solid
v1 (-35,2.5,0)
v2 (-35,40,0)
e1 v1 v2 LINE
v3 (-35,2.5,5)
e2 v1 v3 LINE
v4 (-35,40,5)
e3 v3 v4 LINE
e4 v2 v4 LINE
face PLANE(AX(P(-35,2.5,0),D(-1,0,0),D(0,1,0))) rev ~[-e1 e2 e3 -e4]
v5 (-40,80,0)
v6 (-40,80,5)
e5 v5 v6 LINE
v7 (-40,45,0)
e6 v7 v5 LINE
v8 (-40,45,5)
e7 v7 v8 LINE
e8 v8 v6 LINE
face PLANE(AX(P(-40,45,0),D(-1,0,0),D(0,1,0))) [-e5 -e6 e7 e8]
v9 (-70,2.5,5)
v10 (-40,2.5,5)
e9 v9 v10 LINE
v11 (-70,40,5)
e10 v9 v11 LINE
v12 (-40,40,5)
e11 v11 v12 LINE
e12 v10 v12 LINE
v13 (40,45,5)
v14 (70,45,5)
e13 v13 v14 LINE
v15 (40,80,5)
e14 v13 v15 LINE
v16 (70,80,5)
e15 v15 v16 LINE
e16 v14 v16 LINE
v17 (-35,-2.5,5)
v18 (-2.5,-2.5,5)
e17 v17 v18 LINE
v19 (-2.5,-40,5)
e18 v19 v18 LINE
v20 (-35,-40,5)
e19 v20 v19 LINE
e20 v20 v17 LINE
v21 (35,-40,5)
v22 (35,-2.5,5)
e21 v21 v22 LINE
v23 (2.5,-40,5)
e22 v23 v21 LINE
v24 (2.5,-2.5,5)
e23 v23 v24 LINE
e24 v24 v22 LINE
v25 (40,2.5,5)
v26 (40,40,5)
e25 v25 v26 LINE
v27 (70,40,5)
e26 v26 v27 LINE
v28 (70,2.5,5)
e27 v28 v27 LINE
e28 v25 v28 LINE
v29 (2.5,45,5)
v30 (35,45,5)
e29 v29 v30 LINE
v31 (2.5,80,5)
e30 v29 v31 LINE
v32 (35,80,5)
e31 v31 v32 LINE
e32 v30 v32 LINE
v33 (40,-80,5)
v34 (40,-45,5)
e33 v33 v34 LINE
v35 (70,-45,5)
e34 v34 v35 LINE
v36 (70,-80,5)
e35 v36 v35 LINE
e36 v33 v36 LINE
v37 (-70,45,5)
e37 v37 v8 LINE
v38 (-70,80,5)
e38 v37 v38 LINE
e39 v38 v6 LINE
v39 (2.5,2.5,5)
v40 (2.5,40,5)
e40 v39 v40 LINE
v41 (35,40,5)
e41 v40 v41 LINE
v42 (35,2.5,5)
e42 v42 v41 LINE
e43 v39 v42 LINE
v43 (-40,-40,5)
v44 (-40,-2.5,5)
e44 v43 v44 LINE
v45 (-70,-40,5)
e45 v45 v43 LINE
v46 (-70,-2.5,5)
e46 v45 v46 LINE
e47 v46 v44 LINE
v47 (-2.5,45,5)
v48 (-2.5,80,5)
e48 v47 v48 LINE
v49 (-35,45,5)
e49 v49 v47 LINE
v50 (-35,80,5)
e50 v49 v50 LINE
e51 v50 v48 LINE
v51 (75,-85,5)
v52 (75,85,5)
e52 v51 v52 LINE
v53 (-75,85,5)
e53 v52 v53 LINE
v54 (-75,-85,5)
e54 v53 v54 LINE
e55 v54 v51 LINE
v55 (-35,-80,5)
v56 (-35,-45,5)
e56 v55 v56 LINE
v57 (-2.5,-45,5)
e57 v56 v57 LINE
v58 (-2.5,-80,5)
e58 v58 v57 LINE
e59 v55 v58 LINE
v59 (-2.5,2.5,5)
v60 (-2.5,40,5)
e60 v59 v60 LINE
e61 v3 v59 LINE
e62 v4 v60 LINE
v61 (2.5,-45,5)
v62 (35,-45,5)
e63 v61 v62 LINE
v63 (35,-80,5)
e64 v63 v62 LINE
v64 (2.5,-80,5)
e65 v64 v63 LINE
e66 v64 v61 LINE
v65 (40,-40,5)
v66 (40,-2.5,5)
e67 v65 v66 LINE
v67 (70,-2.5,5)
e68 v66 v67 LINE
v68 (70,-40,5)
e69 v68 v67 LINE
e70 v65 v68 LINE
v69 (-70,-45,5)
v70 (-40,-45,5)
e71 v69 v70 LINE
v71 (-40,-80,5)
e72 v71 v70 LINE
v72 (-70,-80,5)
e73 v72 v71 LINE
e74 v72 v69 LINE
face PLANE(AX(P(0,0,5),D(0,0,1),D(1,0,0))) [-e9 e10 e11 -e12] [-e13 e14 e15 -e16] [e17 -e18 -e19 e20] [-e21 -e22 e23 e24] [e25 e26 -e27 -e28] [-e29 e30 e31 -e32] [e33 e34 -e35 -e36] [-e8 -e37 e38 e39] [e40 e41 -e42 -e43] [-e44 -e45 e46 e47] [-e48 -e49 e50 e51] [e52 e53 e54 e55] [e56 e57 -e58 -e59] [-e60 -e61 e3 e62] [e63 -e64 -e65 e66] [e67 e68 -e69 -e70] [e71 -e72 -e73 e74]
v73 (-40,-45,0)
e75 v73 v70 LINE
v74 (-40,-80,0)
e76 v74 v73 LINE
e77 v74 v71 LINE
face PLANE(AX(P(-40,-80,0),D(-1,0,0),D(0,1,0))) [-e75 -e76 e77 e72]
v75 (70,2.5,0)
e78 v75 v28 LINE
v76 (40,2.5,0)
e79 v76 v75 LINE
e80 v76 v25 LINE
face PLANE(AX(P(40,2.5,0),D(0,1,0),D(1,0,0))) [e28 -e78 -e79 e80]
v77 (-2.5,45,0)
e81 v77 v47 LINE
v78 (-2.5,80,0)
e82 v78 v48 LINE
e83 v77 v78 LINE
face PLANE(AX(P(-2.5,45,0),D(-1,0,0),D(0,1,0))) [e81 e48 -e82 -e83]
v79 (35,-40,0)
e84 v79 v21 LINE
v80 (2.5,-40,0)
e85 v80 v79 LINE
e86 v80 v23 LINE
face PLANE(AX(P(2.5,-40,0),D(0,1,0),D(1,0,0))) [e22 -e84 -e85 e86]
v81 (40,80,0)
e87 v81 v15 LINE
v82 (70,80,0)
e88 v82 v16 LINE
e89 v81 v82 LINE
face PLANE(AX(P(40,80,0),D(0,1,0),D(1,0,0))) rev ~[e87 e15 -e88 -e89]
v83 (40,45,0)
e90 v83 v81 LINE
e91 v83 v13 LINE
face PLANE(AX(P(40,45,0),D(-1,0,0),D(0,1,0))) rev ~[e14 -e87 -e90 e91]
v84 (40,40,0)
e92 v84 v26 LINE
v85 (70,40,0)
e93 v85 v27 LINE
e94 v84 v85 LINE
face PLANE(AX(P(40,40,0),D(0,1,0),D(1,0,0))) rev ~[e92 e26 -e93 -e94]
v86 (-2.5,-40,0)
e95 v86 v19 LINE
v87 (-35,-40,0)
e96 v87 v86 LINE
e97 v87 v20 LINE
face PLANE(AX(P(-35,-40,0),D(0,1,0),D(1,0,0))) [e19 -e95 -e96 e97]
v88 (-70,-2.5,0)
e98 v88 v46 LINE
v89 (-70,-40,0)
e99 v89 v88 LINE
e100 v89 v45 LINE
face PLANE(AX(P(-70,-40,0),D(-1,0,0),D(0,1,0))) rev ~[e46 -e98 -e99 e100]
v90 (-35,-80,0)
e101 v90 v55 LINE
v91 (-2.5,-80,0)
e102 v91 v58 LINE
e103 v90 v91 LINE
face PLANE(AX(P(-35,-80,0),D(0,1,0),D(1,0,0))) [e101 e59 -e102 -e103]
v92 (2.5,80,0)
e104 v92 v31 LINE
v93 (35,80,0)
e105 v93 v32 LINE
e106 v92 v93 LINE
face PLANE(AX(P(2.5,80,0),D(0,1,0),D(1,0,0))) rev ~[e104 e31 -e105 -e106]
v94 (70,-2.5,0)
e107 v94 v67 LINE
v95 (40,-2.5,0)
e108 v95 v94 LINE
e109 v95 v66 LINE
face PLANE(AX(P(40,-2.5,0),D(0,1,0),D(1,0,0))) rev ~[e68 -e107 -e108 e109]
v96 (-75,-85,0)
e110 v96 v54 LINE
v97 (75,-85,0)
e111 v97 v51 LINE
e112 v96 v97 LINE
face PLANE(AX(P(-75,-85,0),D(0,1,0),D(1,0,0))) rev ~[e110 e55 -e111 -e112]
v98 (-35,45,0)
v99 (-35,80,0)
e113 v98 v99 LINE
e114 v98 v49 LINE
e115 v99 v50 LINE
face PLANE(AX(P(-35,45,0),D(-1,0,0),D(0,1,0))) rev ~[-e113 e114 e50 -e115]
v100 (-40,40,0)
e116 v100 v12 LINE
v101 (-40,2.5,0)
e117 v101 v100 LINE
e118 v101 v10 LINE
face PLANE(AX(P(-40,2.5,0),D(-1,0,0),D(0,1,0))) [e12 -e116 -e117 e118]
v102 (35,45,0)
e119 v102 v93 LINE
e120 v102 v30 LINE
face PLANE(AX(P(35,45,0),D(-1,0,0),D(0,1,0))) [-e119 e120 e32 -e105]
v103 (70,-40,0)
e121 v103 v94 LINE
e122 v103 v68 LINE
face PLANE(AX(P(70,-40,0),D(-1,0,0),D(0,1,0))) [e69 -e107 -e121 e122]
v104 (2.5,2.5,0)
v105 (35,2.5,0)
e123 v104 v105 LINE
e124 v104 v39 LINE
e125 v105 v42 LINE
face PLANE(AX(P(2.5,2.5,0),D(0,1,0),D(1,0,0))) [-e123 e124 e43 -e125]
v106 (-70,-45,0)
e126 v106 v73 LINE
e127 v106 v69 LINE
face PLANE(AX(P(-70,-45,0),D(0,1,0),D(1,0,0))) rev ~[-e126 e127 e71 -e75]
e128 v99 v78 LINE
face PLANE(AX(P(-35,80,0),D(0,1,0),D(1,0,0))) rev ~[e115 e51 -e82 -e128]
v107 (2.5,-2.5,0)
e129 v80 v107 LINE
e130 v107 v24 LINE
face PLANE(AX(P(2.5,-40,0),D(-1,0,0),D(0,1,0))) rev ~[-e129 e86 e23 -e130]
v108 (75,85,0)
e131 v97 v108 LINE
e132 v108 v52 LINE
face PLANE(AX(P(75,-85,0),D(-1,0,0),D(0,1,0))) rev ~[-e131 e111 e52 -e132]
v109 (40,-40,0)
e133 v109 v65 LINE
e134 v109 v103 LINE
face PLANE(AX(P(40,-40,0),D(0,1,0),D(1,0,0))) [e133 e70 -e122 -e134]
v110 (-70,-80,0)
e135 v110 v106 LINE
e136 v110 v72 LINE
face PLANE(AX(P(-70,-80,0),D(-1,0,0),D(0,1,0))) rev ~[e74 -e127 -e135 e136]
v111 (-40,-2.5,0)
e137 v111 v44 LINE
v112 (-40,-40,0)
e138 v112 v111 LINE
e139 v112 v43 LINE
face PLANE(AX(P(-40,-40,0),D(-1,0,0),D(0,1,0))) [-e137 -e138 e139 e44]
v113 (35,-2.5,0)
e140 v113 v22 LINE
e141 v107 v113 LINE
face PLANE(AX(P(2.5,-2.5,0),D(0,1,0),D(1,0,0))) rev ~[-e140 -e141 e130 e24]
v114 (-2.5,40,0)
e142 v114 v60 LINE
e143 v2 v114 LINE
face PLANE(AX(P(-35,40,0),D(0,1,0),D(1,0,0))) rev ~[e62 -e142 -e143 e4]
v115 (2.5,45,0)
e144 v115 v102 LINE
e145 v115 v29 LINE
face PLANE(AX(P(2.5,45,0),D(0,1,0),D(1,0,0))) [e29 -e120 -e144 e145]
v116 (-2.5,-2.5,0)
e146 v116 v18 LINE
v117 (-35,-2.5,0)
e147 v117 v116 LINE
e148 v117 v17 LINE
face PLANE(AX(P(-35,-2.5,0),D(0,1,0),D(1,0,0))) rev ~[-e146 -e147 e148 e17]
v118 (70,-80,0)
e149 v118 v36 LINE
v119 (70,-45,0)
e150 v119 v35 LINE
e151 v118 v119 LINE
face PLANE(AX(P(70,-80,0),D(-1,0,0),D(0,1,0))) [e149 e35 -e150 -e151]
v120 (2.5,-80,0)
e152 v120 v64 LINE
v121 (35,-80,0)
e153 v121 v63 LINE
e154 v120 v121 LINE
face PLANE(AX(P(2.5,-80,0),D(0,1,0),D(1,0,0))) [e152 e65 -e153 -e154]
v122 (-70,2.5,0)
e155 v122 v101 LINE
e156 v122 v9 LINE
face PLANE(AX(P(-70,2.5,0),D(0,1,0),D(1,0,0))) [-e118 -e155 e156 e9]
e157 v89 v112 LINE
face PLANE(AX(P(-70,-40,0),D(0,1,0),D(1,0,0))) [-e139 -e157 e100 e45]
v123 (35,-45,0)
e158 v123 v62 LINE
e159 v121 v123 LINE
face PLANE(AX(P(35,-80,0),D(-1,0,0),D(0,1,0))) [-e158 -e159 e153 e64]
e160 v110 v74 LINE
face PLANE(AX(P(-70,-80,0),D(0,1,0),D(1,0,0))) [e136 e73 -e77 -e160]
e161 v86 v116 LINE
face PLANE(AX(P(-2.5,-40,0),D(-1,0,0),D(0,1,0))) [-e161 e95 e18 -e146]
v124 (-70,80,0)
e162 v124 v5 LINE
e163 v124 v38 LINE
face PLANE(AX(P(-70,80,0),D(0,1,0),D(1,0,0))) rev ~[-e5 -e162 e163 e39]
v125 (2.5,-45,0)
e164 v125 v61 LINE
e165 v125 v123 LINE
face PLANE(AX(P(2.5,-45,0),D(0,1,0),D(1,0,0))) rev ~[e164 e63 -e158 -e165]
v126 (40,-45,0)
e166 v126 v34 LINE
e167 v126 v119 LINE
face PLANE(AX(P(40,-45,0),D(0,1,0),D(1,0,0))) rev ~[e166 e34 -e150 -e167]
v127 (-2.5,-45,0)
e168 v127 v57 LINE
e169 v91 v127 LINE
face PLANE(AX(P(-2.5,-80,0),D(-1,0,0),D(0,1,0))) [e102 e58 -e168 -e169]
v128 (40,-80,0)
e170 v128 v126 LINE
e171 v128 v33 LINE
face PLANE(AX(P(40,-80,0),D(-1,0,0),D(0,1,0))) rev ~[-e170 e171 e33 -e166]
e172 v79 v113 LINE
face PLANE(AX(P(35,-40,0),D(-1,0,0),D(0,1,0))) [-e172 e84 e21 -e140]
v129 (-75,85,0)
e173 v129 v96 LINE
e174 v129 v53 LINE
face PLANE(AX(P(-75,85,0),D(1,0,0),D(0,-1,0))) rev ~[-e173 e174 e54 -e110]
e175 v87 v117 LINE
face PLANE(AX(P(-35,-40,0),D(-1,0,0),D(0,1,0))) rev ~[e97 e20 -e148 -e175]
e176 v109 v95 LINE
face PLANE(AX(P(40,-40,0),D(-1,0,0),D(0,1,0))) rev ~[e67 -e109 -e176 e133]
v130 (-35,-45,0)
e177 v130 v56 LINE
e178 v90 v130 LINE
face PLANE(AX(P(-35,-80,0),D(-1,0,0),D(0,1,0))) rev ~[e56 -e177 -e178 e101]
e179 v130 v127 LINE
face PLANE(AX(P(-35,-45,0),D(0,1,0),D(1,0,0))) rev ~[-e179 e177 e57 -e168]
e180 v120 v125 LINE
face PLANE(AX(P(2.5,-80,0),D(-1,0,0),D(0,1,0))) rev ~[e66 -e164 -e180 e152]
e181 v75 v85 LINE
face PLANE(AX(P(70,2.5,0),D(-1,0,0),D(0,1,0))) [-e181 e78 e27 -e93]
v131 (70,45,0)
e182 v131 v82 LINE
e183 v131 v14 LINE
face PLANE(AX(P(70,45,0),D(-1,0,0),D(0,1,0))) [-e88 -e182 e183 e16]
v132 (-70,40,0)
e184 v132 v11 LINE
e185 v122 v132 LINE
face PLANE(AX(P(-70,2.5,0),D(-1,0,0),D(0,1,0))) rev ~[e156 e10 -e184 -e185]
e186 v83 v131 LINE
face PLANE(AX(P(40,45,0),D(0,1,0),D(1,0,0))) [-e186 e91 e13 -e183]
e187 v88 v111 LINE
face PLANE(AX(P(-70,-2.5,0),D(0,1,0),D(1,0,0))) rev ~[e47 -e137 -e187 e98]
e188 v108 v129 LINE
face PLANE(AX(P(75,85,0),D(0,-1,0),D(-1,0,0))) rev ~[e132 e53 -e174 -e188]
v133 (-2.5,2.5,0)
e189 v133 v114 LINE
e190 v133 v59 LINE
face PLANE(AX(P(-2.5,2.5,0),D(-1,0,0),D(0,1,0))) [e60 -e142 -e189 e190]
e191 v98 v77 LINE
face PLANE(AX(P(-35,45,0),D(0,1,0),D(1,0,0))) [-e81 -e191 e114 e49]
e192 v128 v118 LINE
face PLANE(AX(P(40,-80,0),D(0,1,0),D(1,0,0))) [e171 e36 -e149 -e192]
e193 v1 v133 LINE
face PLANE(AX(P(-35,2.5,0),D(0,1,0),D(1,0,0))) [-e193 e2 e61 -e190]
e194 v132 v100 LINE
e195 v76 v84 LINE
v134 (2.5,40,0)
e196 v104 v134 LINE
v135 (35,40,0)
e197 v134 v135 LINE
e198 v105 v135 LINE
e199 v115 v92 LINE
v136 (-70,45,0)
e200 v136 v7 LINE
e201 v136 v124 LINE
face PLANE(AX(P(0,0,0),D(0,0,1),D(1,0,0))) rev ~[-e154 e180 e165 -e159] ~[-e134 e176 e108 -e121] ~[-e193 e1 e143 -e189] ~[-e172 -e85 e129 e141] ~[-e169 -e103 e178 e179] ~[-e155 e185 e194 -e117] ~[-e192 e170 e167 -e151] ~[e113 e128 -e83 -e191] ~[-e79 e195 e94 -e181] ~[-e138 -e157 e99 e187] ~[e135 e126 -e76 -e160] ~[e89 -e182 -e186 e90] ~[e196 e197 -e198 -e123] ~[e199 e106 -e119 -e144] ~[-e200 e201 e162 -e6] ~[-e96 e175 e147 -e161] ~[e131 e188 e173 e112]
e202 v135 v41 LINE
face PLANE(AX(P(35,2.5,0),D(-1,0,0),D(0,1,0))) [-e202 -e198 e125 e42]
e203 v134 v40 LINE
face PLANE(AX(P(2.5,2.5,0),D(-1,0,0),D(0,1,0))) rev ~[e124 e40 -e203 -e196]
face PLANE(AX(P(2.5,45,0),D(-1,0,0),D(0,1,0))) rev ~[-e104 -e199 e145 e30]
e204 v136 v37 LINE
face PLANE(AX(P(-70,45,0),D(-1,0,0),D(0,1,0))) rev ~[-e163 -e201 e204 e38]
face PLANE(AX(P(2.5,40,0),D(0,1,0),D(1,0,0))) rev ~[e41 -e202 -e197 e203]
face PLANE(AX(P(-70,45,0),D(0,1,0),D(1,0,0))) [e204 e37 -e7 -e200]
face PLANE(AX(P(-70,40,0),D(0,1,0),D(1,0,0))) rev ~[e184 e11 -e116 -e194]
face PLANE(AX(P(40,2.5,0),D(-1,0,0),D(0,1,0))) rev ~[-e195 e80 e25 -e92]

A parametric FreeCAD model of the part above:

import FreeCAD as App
import Part
import Sketcher
Q = App.Units.Quantity


def add_polygon(sketch, points):
    """Adds a closed chain of lines whose ends are joined by coincident constraints."""
    first, n = sketch.GeometryCount, len(points)
    for a, b in zip(points, points[1:] + points[:1]):
        sketch.addGeometry(Part.LineSegment(App.Vector(*a, 0), App.Vector(*b, 0)), False)
    for i in range(n):
        sketch.addConstraint(Sketcher.Constraint("Coincident", first + i, 2, first + (i + 1) % n, 1))

doc = App.newDocument("Part")
body = doc.addObject("PartDesign::Body", "Body")

sketch1 = body.newObject("Sketcher::SketchObject", "Sketch")
sketch1.AttachmentSupport = (doc.getObject("XY_Plane"), [""])
sketch1.MapMode = "FlatFace"
add_polygon(sketch1, [(-75, 85), (-75, -85), (75, -85), (75, 85)])
add_polygon(sketch1, [(-40, -80), (-70, -80), (-70, -45), (-40, -45)])
add_polygon(sketch1, [(-2, -80), (-35, -80), (-35, -45), (-2, -45)])
add_polygon(sketch1, [(-40, -40), (-70, -40), (-70, -2), (-40, -2)])
add_polygon(sketch1, [(-2, -40), (-35, -40), (-35, -2), (-2, -2)])
add_polygon(sketch1, [(35, -80), (2, -80), (2, -45), (35, -45)])
add_polygon(sketch1, [(70, -80), (40, -80), (40, -45), (70, -45)])
add_polygon(sketch1, [(35, -40), (2, -40), (2, -2), (35, -2)])
add_polygon(sketch1, [(70, -40), (40, -40), (40, -2), (70, -2)])
add_polygon(sketch1, [(-40, 2), (-70, 2), (-70, 40), (-40, 40)])
add_polygon(sketch1, [(-2, 2), (-35, 2), (-35, 40), (-2, 40)])
add_polygon(sketch1, [(-40, 45), (-70, 45), (-70, 80), (-40, 80)])
add_polygon(sketch1, [(-2, 45), (-35, 45), (-35, 80), (-2, 80)])
add_polygon(sketch1, [(35, 2), (2, 2), (2, 40), (35, 40)])
add_polygon(sketch1, [(70, 2), (40, 2), (40, 40), (70, 40)])
add_polygon(sketch1, [(35, 45), (2, 45), (2, 80), (35, 80)])
add_polygon(sketch1, [(70, 45), (40, 45), (40, 80), (70, 80)])
sketch1.addConstraint([
    Sketcher.Constraint("Vertical", 0),
    Sketcher.Constraint("Horizontal", 1),
    Sketcher.Constraint("Vertical", 2),
    Sketcher.Constraint("Horizontal", 3),
    Sketcher.Constraint("Horizontal", 4),
    Sketcher.Constraint("Vertical", 5),
    Sketcher.Constraint("Horizontal", 6),
    Sketcher.Constraint("Vertical", 7),
    Sketcher.Constraint("Horizontal", 8),
    Sketcher.Constraint("Vertical", 9),
    Sketcher.Constraint("Horizontal", 10),
    Sketcher.Constraint("Vertical", 11),
    Sketcher.Constraint("Horizontal", 12),
    Sketcher.Constraint("Vertical", 13),
    Sketcher.Constraint("Horizontal", 14),
    Sketcher.Constraint("Vertical", 15),
    Sketcher.Constraint("Horizontal", 16),
    Sketcher.Constraint("Vertical", 17),
    Sketcher.Constraint("Horizontal", 18),
    Sketcher.Constraint("Vertical", 19),
    Sketcher.Constraint("Horizontal", 20),
    Sketcher.Constraint("Vertical", 21),
    Sketcher.Constraint("Horizontal", 22),
    Sketcher.Constraint("Vertical", 23),
    Sketcher.Constraint("Horizontal", 24),
    Sketcher.Constraint("Vertical", 25),
    Sketcher.Constraint("Horizontal", 26),
    Sketcher.Constraint("Vertical", 27),
    Sketcher.Constraint("Horizontal", 28),
    Sketcher.Constraint("Vertical", 29),
    Sketcher.Constraint("Horizontal", 30),
    Sketcher.Constraint("Vertical", 31),
    Sketcher.Constraint("Horizontal", 32),
    Sketcher.Constraint("Vertical", 33),
    Sketcher.Constraint("Horizontal", 34),
    Sketcher.Constraint("Vertical", 35),
    Sketcher.Constraint("Horizontal", 36),
    Sketcher.Constraint("Vertical", 37),
    Sketcher.Constraint("Horizontal", 38),
    Sketcher.Constraint("Vertical", 39),
    Sketcher.Constraint("Horizontal", 40),
    Sketcher.Constraint("Vertical", 41),
    Sketcher.Constraint("Horizontal", 42),
    Sketcher.Constraint("Vertical", 43),
    Sketcher.Constraint("Horizontal", 44),
    Sketcher.Constraint("Vertical", 45),
    Sketcher.Constraint("Horizontal", 46),
    Sketcher.Constraint("Vertical", 47),
    Sketcher.Constraint("Horizontal", 48),
    Sketcher.Constraint("Vertical", 49),
    Sketcher.Constraint("Horizontal", 50),
    Sketcher.Constraint("Vertical", 51),
    Sketcher.Constraint("Horizontal", 52),
    Sketcher.Constraint("Vertical", 53),
    Sketcher.Constraint("Horizontal", 54),
    Sketcher.Constraint("Vertical", 55),
    Sketcher.Constraint("Horizontal", 56),
    Sketcher.Constraint("Vertical", 57),
    Sketcher.Constraint("Horizontal", 58),
    Sketcher.Constraint("Vertical", 59),
    Sketcher.Constraint("Horizontal", 60),
    Sketcher.Constraint("Vertical", 61),
    Sketcher.Constraint("Horizontal", 62),
    Sketcher.Constraint("Vertical", 63),
    Sketcher.Constraint("Horizontal", 64),
    Sketcher.Constraint("Vertical", 65),
    Sketcher.Constraint("Horizontal", 66),
    Sketcher.Constraint("Vertical", 67),
    Sketcher.Constraint("Symmetric", 0, 2, 2, 2, -1, 1),
    Sketcher.Constraint("Symmetric", 34, 2, 36, 2, -1, 1),
    Sketcher.Constraint("Symmetric", 32, 2, 38, 2, -1, 1),
    Sketcher.Constraint("Symmetric", 30, 2, 40, 2, -1, 1),
    Sketcher.Constraint("Symmetric", 28, 2, 42, 2, -1, 1),
    Sketcher.Constraint("Symmetric", 26, 2, 44, 2, -1, 1),
    Sketcher.Constraint("Symmetric", 24, 2, 46, 2, -1, 1),
    Sketcher.Constraint("Symmetric", 22, 2, 48, 2, -1, 1),
    Sketcher.Constraint("Symmetric", 20, 2, 50, 2, -1, 1),
    Sketcher.Constraint("Symmetric", 18, 2, 52, 2, -1, 1),
    Sketcher.Constraint("Symmetric", 16, 2, 54, 2, -1, 1),
    Sketcher.Constraint("Symmetric", 14, 2, 56, 2, -1, 1),
    Sketcher.Constraint("Symmetric", 12, 2, 58, 2, -1, 1),
    Sketcher.Constraint("Symmetric", 10, 2, 60, 2, -1, 1),
    Sketcher.Constraint("Symmetric", 8, 2, 62, 2, -1, 1),
    Sketcher.Constraint("Symmetric", 6, 2, 64, 2, -1, 1),
    Sketcher.Constraint("Symmetric", 4, 2, 66, 2, -1, 1),
    Sketcher.Constraint("Symmetric", 11, 2, 20, 2, -2),
    Sketcher.Constraint("Symmetric", 9, 2, 22, 2, -2),
    Sketcher.Constraint("Symmetric", 7, 2, 24, 2, -2),
    Sketcher.Constraint("Symmetric", 5, 2, 26, 2, -2),
    Sketcher.Constraint("Symmetric", 19, 2, 28, 2, -2),
    Sketcher.Constraint("Symmetric", 17, 2, 30, 2, -2),
    Sketcher.Constraint("Symmetric", 15, 2, 32, 2, -2),
    Sketcher.Constraint("Symmetric", 13, 2, 34, 2, -2),
    Sketcher.Constraint("Horizontal", 7, 2, 8, 2),
    Sketcher.Constraint("Horizontal", 6, 2, 9, 2),
    Sketcher.Constraint("Horizontal", 15, 2, 16, 2),
    Sketcher.Constraint("Horizontal", 14, 2, 17, 2),
    Sketcher.Constraint("Vertical", 5, 2, 12, 2),
    Sketcher.Constraint("Vertical", 7, 2, 14, 2),
    Sketcher.Constraint("Vertical", 9, 2, 16, 2),
    Sketcher.Constraint("Vertical", 11, 2, 18, 2),
    Sketcher.Constraint("DistanceX", 1, 1, 1, 2, Q("150 mm")),
    Sketcher.Constraint("DistanceX", 4, 2, 4, 1, Q("30 mm")),
    Sketcher.Constraint("DistanceY", 0, 2, 0, 1, Q("170 mm")),
    Sketcher.Constraint("DistanceY", 5, 1, 5, 2, Q("35 mm")),
    Sketcher.Constraint("DistanceX", 8, 2, 8, 1, Q("32.5 mm")),
    Sketcher.Constraint("DistanceY", 13, 1, 13, 2, Q("37.5 mm")),
    Sketcher.Constraint("DistanceX", 4, 2, -1, 1, Q("70 mm")),
    Sketcher.Constraint("DistanceY", 4, 2, -1, 1, Q("80 mm")),
    Sketcher.Constraint("DistanceX", 8, 2, -1, 1, Q("35 mm")),
    Sketcher.Constraint("DistanceY", 12, 2, -1, 1, Q("40 mm")),
])
pad1 = body.newObject("PartDesign::Pad", "Pad")
pad1.Profile = sketch1
pad1.Length = 5

doc.recompute()
